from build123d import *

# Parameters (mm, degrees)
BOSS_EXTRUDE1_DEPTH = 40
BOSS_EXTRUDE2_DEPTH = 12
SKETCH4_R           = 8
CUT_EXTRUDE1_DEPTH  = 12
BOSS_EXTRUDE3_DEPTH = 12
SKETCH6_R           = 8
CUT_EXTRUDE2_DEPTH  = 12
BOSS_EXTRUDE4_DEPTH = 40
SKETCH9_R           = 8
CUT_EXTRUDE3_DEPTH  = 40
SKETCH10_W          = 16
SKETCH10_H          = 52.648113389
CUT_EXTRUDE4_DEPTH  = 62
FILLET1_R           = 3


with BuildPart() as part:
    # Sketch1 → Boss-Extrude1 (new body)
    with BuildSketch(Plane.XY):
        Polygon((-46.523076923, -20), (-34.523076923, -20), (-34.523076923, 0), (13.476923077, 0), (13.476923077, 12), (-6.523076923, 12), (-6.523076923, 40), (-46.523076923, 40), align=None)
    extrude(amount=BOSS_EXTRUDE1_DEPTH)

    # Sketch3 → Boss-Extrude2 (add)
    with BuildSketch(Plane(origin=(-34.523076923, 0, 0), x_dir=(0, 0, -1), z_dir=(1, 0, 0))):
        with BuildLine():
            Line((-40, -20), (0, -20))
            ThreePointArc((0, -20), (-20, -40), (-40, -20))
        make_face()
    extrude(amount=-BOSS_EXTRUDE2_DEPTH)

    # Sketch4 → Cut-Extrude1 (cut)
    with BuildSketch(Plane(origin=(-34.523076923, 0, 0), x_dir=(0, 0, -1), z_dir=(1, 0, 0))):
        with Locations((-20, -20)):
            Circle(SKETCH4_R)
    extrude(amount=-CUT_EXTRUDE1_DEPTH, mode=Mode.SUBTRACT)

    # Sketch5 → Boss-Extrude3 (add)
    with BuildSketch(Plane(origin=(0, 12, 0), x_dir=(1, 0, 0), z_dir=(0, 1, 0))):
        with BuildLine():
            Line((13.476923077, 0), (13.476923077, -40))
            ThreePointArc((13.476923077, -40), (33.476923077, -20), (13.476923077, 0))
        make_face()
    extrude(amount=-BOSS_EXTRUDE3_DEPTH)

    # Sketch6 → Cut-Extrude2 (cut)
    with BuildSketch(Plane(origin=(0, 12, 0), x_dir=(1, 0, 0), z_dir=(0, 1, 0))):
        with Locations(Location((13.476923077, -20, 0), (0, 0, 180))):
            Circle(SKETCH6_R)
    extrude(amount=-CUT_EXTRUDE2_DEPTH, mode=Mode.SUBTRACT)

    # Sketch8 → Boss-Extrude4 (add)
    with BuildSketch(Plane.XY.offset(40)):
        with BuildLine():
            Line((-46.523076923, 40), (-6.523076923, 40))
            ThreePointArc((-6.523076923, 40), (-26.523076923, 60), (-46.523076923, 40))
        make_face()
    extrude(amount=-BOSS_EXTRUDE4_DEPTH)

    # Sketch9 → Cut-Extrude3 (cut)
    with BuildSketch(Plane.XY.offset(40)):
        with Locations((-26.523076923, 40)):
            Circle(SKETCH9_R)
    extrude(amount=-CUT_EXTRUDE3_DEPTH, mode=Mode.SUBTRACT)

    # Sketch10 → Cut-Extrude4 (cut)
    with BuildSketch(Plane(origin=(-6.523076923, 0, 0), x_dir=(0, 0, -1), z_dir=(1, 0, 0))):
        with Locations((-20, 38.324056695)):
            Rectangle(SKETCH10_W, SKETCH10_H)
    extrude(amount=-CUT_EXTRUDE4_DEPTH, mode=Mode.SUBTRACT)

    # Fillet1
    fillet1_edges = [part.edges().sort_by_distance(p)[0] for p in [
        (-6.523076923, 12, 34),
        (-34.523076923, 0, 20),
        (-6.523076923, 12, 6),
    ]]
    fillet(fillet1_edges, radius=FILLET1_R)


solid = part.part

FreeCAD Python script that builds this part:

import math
import FreeCAD as App
import Part
import Sketcher


def edges_at(feature, points):
    """Names of the edges that pass closest to the given points."""
    edges = feature.Shape.Edges
    near = lambda p: min(range(len(edges)), key=lambda i: edges[i].distToShape(Part.Vertex(*p))[0])
    return sorted({f"Edge{near(p) + 1}" for p in points})

doc = App.newDocument("Part")
params = doc.addObject("Spreadsheet::Sheet", "Params")
for row, (alias, value) in enumerate([
    ("sketch1_width", "12 mm"),
    ("sketch1_width2", "48 mm"),
    ("sketch1_width3", "20 mm"),
    ("sketch1_height", "28 mm"),
    ("pad1_length", "40 mm"),
    ("sketch2_radius", "20 mm"),
    ("pad2_length", "12 mm"),
    ("sketch3_diameter", "16 mm"),
    ("pocket1_length", "12 mm"),
    ("sketch4_radius", "20 mm"),
    ("pad3_length", "12 mm"),
    ("sketch5_diameter", "16 mm"),
    ("pocket2_length", "12 mm"),
    ("sketch6_radius", "20 mm"),
    ("pad4_length", "40 mm"),
    ("sketch7_diameter", "16 mm"),
    ("pocket3_length", "40 mm"),
    ("sketch8_height", "16 mm"),
    ("pocket4_length", "62 mm"),
    ("fillet_radius", "3 mm"),
], start=1):
    params.set(f"A{row}", alias)
    params.set(f"B{row}", "=" + value)
    params.setAlias(f"B{row}", alias)

body = doc.addObject("PartDesign::Body", "Body")

sketch1 = body.newObject("Sketcher::SketchObject", "Sketch")
sketch1.AttachmentSupport = (doc.getObject("XY_Plane"), [""])
sketch1.MapMode = "FlatFace"
sketch1.addGeometry(Part.LineSegment(App.Vector(-46.523077, -20, 0), App.Vector(-34.523077, -20, 0)), False)
sketch1.addGeometry(Part.LineSegment(App.Vector(-34.523077, -20, 0), App.Vector(-34.523077, 0, 0)), False)
sketch1.addGeometry(Part.LineSegment(App.Vector(-34.523077, 0, 0), App.Vector(13.476923, 0, 0)), False)
sketch1.addGeometry(Part.LineSegment(App.Vector(13.476923, 0, 0), App.Vector(13.476923, 12, 0)), False)
sketch1.addGeometry(Part.LineSegment(App.Vector(13.476923, 12, 0), App.Vector(-6.523077, 12, 0)), False)
sketch1.addGeometry(Part.LineSegment(App.Vector(-6.523077, 12, 0), App.Vector(-6.523077, 40, 0)), False)
sketch1.addGeometry(Part.LineSegment(App.Vector(-6.523077, 40, 0), App.Vector(-46.523077, 40, 0)), False)
sketch1.addGeometry(Part.LineSegment(App.Vector(-46.523077, 40, 0), App.Vector(-46.523077, -20, 0)), False)
sketch1.addConstraint(Sketcher.Constraint("Coincident", 0, 2, 1, 1))
sketch1.addConstraint(Sketcher.Constraint("Coincident", 1, 2, 2, 1))
sketch1.addConstraint(Sketcher.Constraint("Coincident", 2, 2, 3, 1))
sketch1.addConstraint(Sketcher.Constraint("Coincident", 3, 2, 4, 1))
sketch1.addConstraint(Sketcher.Constraint("Coincident", 4, 2, 5, 1))
sketch1.addConstraint(Sketcher.Constraint("Coincident", 5, 2, 6, 1))
sketch1.addConstraint(Sketcher.Constraint("Coincident", 6, 2, 7, 1))
sketch1.addConstraint(Sketcher.Constraint("Coincident", 7, 2, 0, 1))
sketch1.addConstraint(Sketcher.Constraint("Horizontal", 0))
sketch1.addConstraint(Sketcher.Constraint("Vertical", 1))
sketch1.addConstraint(Sketcher.Constraint("Horizontal", 2))
sketch1.addConstraint(Sketcher.Constraint("Vertical", 3))
sketch1.addConstraint(Sketcher.Constraint("Horizontal", 4))
sketch1.addConstraint(Sketcher.Constraint("Vertical", 5))
sketch1.addConstraint(Sketcher.Constraint("Horizontal", 6))
sketch1.addConstraint(Sketcher.Constraint("Vertical", 7))
sketch1.addConstraint(Sketcher.Constraint("PointOnObject", 1, 2, -1))
sketch1.addConstraint(Sketcher.Constraint("Equal", 4, 1))
sketch1.addConstraint(Sketcher.Constraint("Equal", 0, 3))
sketch1.addConstraint(Sketcher.Constraint("DistanceX", 0, 1, 0, 2, 12.0))
sketch1.addConstraint(Sketcher.Constraint("DistanceX", 2, 1, 2, 2, 48.0))
sketch1.addConstraint(Sketcher.Constraint("DistanceX", 4, 2, 4, 1, 20.0))
sketch1.addConstraint(Sketcher.Constraint("DistanceY", 5, 1, 5, 2, 28.0))
sketch1.addConstraint(Sketcher.Constraint("DistanceX", 0, 2, -1, 1, 34.523077))
sketch1.setExpression("Constraints[19]", "Params.sketch1_width")
sketch1.setExpression("Constraints[20]", "Params.sketch1_width2")
sketch1.setExpression("Constraints[21]", "Params.sketch1_width3")
sketch1.setExpression("Constraints[22]", "Params.sketch1_height")
pad1 = body.newObject("PartDesign::Pad", "Pad")
pad1.Profile = sketch1
pad1.setExpression("Length", "Params.pad1_length")

sketch2 = body.newObject("Sketcher::SketchObject", "Sketch001")
sketch2.AttachmentSupport = (doc.getObject("YZ_Plane"), [""])
sketch2.MapMode = "FlatFace"
sketch2.AttachmentOffset = App.Placement(App.Vector(0, 0, -34.523077), App.Rotation())
sketch2.addGeometry(Part.LineSegment(App.Vector(-20, 0, 0), App.Vector(-20, 40, 0)), False)
sketch2.addGeometry(Part.ArcOfCircle(Part.Circle(App.Vector(-20, 20, 0), App.Vector(0, 0, 1), 20), math.radians(90), math.radians(270)), False)
sketch2.addConstraint(Sketcher.Constraint("Coincident", 0, 1, 1, 2))
sketch2.addConstraint(Sketcher.Constraint("Coincident", 1, 1, 0, 2))
sketch2.addConstraint(Sketcher.Constraint("Vertical", 0))
sketch2.addConstraint(Sketcher.Constraint("PointOnObject", 0, 1, -1))
sketch2.addConstraint(Sketcher.Constraint("Vertical", 1, 3, 0, 1))
sketch2.addConstraint(Sketcher.Constraint("Radius", 1, 20.0))
sketch2.addConstraint(Sketcher.Constraint("DistanceX", 1, 3, -1, 1, 20.0))
sketch2.setExpression("Constraints[5]", "Params.sketch2_radius")
pad2 = body.newObject("PartDesign::Pad", "Pad001")
pad2.Profile = sketch2
pad2.setExpression("Length", "Params.pad2_length")
pad2.Reversed = True

sketch3 = body.newObject("Sketcher::SketchObject", "Sketch002")
sketch3.AttachmentSupport = (doc.getObject("YZ_Plane"), [""])
sketch3.MapMode = "FlatFace"
sketch3.AttachmentOffset = App.Placement(App.Vector(0, 0, -34.523077), App.Rotation())
sketch3.addGeometry(Part.Circle(App.Vector(-20, 20, 0), App.Vector(0, 0, 1), 8), False)
sketch3.addConstraint(Sketcher.Constraint("Diameter", 0, 16.0))
sketch3.addConstraint(Sketcher.Constraint("DistanceX", 0, 3, -1, 1, 20.0))
sketch3.addConstraint(Sketcher.Constraint("DistanceY", -1, 1, 0, 3, 20.0))
sketch3.setExpression("Constraints[0]", "Params.sketch3_diameter")
pocket1 = body.newObject("PartDesign::Pocket", "Pocket")
pocket1.Profile = sketch3
pocket1.setExpression("Length", "Params.pocket1_length")

sketch4 = body.newObject("Sketcher::SketchObject", "Sketch003")
sketch4.AttachmentSupport = (doc.getObject("XZ_Plane"), [""])
sketch4.MapMode = "FlatFace"
sketch4.AttachmentOffset = App.Placement(App.Vector(0, 0, -12), App.Rotation())
sketch4.addGeometry(Part.LineSegment(App.Vector(13.476923, 0, 0), App.Vector(13.476923, 40, 0)), False)
sketch4.addGeometry(Part.ArcOfCircle(Part.Circle(App.Vector(13.476923, 20, 0), App.Vector(0, 0, 1), 20), math.radians(-90), math.radians(90)), False)
sketch4.addConstraint(Sketcher.Constraint("Coincident", 0, 1, 1, 1))
sketch4.addConstraint(Sketcher.Constraint("Coincident", 1, 2, 0, 2))
sketch4.addConstraint(Sketcher.Constraint("Vertical", 0))
sketch4.addConstraint(Sketcher.Constraint("PointOnObject", 0, 1, -1))
sketch4.addConstraint(Sketcher.Constraint("Vertical", 1, 3, 0, 1))
sketch4.addConstraint(Sketcher.Constraint("Radius", 1, 20.0))
sketch4.addConstraint(Sketcher.Constraint("DistanceX", -1, 1, 1, 3, 13.476923))
sketch4.setExpression("Constraints[5]", "Params.sketch4_radius")
pad3 = body.newObject("PartDesign::Pad", "Pad002")
pad3.Profile = sketch4
pad3.setExpression("Length", "Params.pad3_length")

sketch5 = body.newObject("Sketcher::SketchObject", "Sketch004")
sketch5.AttachmentSupport = (doc.getObject("XZ_Plane"), [""])
sketch5.MapMode = "FlatFace"
sketch5.AttachmentOffset = App.Placement(App.Vector(0, 0, -12), App.Rotation())
sketch5.addGeometry(Part.Circle(App.Vector(13.476923, 20, 0), App.Vector(0, 0, 1), 8), False)
sketch5.addConstraint(Sketcher.Constraint("Diameter", 0, 16.0))
sketch5.addConstraint(Sketcher.Constraint("DistanceY", -1, 1, 0, 3, 20.0))
sketch5.addConstraint(Sketcher.Constraint("DistanceX", -1, 1, 0, 3, 13.476923))
sketch5.setExpression("Constraints[0]", "Params.sketch5_diameter")
pocket2 = body.newObject("PartDesign::Pocket", "Pocket001")
pocket2.Profile = sketch5
pocket2.setExpression("Length", "Params.pocket2_length")
pocket2.Reversed = True

sketch6 = body.newObject("Sketcher::SketchObject", "Sketch005")
sketch6.AttachmentSupport = (doc.getObject("XY_Plane"), [""])
sketch6.MapMode = "FlatFace"
sketch6.AttachmentOffset = App.Placement(App.Vector(0, 0, 40), App.Rotation())
sketch6.addGeometry(Part.LineSegment(App.Vector(-46.523077, 40, 0), App.Vector(-6.523077, 40, 0)), False)
sketch6.addGeometry(Part.ArcOfCircle(Part.Circle(App.Vector(-26.523077, 40, 0), App.Vector(0, 0, 1), 20), math.radians(0), math.radians(180)), False)
sketch6.addConstraint(Sketcher.Constraint("Coincident", 0, 1, 1, 2))
sketch6.addConstraint(Sketcher.Constraint("Coincident", 1, 1, 0, 2))
sketch6.addConstraint(Sketcher.Constraint("Horizontal", 0))
sketch6.addConstraint(Sketcher.Constraint("Horizontal", 1, 3, 0, 1))
sketch6.addConstraint(Sketcher.Constraint("Radius", 1, 20.0))
sketch6.addConstraint(Sketcher.Constraint("DistanceY", -1, 1, 1, 3, 40.0))
sketch6.addConstraint(Sketcher.Constraint("DistanceX", 1, 3, -1, 1, 26.523077))
sketch6.setExpression("Constraints[4]", "Params.sketch6_radius")
pad4 = body.newObject("PartDesign::Pad", "Pad003")
pad4.Profile = sketch6
pad4.setExpression("Length", "Params.pad4_length")
pad4.Reversed = True

sketch7 = body.newObject("Sketcher::SketchObject", "Sketch006")
sketch7.AttachmentSupport = (doc.getObject("XY_Plane"), [""])
sketch7.MapMode = "FlatFace"
sketch7.AttachmentOffset = App.Placement(App.Vector(0, 0, 40), App.Rotation())
sketch7.addGeometry(Part.Circle(App.Vector(-26.523077, 40, 0), App.Vector(0, 0, 1), 8), False)
sketch7.addConstraint(Sketcher.Constraint("Diameter", 0, 16.0))
sketch7.addConstraint(Sketcher.Constraint("DistanceY", -1, 1, 0, 3, 40.0))
sketch7.addConstraint(Sketcher.Constraint("DistanceX", 0, 3, -1, 1, 26.523077))
sketch7.setExpression("Constraints[0]", "Params.sketch7_diameter")
pocket3 = body.newObject("PartDesign::Pocket", "Pocket002")
pocket3.Profile = sketch7
pocket3.setExpression("Length", "Params.pocket3_length")

sketch8 = body.newObject("Sketcher::SketchObject", "Sketch007")
sketch8.AttachmentSupport = (doc.getObject("YZ_Plane"), [""])
sketch8.MapMode = "FlatFace"
sketch8.AttachmentOffset = App.Placement(App.Vector(0, 0, -6.523077), App.Rotation())
sketch8.addGeometry(Part.LineSegment(App.Vector(64.648113, 28, 0), App.Vector(12, 28, 0)), False)
sketch8.addGeometry(Part.LineSegment(App.Vector(12, 28, 0), App.Vector(12, 12, 0)), False)
sketch8.addGeometry(Part.LineSegment(App.Vector(12, 12, 0), App.Vector(64.648113, 12, 0)), False)
sketch8.addGeometry(Part.LineSegment(App.Vector(64.648113, 12, 0), App.Vector(64.648113, 28, 0)), False)
sketch8.addConstraint(Sketcher.Constraint("Coincident", 0, 2, 1, 1))
sketch8.addConstraint(Sketcher.Constraint("Coincident", 1, 2, 2, 1))
sketch8.addConstraint(Sketcher.Constraint("Coincident", 2, 2, 3, 1))
sketch8.addConstraint(Sketcher.Constraint("Coincident", 3, 2, 0, 1))
sketch8.addConstraint(Sketcher.Constraint("Horizontal", 0))
sketch8.addConstraint(Sketcher.Constraint("Vertical", 1))
sketch8.addConstraint(Sketcher.Constraint("Horizontal", 2))
sketch8.addConstraint(Sketcher.Constraint("Vertical", 3))
sketch8.addConstraint(Sketcher.Constraint("DistanceY", 1, 2, 1, 1, 16.0))
sketch8.addConstraint(Sketcher.Constraint("DistanceX", -1, 1, 0, 2, 12.0))
sketch8.addConstraint(Sketcher.Constraint("DistanceY", -1, 1, 0, 2, 28.0))
sketch8.addConstraint(Sketcher.Constraint("DistanceX", 0, 2, 0, 1, 52.648113))
sketch8.setExpression("Constraints[8]", "Params.sketch8_height")
pocket4 = body.newObject("PartDesign::Pocket", "Pocket003")
pocket4.Profile = sketch8
pocket4.setExpression("Length", "Params.pocket4_length")
doc.recompute()

fillet = body.newObject("PartDesign::Fillet", "Fillet")
fillet.Base = (pocket4, edges_at(pocket4, [(-6.523, 12, 34), (-34.523, 0, 20), (-6.523, 12, 6)]))
fillet.setExpression("Radius", "Params.fillet_radius")

doc.recompute()
